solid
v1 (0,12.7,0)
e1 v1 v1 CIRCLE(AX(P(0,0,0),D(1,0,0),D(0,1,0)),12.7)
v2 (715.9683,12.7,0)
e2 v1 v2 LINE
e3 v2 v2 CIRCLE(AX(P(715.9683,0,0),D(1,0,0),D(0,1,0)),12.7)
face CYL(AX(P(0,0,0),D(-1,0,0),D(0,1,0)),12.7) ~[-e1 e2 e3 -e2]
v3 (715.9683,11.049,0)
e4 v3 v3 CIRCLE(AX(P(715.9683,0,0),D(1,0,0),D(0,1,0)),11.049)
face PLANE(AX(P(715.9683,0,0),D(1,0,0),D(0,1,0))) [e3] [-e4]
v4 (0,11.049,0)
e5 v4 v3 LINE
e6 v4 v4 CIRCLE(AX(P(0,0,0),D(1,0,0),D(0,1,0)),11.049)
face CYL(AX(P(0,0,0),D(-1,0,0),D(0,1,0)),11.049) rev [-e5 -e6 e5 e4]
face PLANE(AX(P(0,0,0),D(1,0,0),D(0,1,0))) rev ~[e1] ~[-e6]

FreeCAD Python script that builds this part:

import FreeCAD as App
import Part
import Sketcher
from FreeCAD import Vector
Q = App.Units.Quantity

doc = App.newDocument("Part")
body = doc.addObject("PartDesign::Body", "Body")

# Sketch on YZ plane
sketch1 = doc.addObject("Sketcher::SketchObject", "Sketch")
body.addObject(sketch1)
sketch1.AttachmentSupport = (doc.YZ_Plane, [""])
sketch1.MapMode = "FlatFace"
sketch1.addGeometry(Part.Circle(Vector(0, 0, 0), Vector(0, 0, 1), 13), False)
sketch1.addGeometry(Part.Circle(Vector(0, 0, 0), Vector(0, 0, 1), 11), False)
sketch1.addConstraint(Sketcher.Constraint("Coincident", 0, 3, -1, 1))
sketch1.addConstraint(Sketcher.Constraint("Coincident", 1, 3, -1, 1))
sketch1.addConstraint(Sketcher.Constraint("Diameter", 0, Q("1 in")))
sketch1.addConstraint(Sketcher.Constraint("Diameter", 1, Q("0.87 in")))
pad1 = doc.addObject("PartDesign::Pad", "Pad")
body.addObject(pad1)
pad1.Profile = sketch1
pad1.Length = 715.9683

doc.recompute()
